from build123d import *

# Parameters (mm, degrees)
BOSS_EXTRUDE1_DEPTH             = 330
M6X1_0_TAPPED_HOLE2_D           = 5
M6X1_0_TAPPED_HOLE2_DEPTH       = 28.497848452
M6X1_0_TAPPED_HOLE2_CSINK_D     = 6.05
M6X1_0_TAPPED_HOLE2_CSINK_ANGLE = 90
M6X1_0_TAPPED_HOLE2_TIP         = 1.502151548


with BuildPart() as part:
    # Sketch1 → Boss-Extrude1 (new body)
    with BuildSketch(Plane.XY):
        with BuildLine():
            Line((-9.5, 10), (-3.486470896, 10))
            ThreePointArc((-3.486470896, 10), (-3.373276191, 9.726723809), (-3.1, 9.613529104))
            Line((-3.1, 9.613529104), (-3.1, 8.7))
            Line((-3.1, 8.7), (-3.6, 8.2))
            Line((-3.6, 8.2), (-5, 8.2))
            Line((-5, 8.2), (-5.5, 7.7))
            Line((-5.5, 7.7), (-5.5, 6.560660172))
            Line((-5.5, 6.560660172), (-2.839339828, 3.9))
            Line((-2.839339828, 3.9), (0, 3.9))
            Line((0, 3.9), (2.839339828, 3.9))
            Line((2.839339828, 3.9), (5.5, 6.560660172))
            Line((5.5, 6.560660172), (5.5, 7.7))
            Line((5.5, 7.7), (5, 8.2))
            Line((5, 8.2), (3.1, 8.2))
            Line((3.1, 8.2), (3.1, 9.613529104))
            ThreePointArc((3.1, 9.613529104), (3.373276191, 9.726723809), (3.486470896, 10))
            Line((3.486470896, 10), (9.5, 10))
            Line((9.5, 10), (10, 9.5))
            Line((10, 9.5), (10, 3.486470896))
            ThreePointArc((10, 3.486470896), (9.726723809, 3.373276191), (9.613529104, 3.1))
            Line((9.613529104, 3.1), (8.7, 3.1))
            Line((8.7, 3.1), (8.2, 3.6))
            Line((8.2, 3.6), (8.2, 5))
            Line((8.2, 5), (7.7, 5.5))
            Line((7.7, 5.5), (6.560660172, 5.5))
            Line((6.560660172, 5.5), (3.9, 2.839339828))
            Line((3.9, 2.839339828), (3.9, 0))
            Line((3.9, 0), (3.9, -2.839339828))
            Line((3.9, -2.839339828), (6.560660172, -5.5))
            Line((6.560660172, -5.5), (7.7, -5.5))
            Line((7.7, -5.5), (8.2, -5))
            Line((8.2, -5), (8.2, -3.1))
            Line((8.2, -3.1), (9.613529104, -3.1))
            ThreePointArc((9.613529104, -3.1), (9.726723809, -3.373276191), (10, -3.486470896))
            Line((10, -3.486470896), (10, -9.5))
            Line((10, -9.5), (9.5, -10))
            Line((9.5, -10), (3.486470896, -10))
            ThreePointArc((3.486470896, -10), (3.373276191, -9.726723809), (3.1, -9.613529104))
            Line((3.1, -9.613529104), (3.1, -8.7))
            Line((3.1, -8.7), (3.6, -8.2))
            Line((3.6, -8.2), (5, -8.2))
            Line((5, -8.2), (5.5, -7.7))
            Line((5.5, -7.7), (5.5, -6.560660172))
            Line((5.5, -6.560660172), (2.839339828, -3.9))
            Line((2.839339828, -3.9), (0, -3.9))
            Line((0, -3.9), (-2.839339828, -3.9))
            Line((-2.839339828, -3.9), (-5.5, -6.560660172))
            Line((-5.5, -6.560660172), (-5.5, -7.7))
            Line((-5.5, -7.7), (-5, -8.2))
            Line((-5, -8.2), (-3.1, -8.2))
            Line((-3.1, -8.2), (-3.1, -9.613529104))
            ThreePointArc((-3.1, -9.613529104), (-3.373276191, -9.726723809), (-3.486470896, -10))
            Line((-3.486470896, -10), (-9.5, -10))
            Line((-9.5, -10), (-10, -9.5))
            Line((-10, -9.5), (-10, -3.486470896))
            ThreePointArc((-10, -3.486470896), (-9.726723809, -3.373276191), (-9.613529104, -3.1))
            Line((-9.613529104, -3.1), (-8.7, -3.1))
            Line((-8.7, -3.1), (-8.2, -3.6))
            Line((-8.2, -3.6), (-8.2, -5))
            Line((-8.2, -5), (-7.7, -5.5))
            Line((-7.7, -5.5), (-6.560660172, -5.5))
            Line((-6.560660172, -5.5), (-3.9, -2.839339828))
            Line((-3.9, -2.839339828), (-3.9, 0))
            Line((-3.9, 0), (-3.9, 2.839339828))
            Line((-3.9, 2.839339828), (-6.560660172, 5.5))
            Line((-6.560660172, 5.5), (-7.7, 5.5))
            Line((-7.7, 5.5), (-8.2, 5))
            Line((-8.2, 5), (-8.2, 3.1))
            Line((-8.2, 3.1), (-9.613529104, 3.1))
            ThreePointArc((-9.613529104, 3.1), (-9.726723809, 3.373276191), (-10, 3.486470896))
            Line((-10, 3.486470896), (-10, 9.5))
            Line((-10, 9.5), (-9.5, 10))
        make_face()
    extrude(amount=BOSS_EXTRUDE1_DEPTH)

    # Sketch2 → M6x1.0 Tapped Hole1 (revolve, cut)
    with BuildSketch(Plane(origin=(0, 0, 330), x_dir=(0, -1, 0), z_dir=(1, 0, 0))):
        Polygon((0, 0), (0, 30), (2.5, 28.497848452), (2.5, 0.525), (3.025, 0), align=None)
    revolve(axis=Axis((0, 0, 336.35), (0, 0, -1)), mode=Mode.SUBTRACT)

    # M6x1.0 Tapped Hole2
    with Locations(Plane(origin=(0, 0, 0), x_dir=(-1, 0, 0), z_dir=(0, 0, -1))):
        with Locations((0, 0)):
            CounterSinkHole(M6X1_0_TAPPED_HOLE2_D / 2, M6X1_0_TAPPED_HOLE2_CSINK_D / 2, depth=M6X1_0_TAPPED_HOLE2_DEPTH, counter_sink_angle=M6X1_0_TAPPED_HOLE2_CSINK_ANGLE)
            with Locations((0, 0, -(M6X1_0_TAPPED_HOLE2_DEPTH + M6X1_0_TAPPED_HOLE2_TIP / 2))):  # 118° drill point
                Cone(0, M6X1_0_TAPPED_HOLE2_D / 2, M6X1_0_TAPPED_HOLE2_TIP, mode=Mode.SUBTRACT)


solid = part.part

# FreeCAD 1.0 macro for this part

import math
import FreeCAD as App
import Part
import Sketcher
Q = App.Units.Quantity


def add_polygon(sketch, points):
    """Adds a closed chain of lines whose ends are joined by coincident constraints."""
    first, n = sketch.GeometryCount, len(points)
    for a, b in zip(points, points[1:] + points[:1]):
        sketch.addGeometry(Part.LineSegment(App.Vector(*a, 0), App.Vector(*b, 0)), False)
    for i in range(n):
        sketch.addConstraint(Sketcher.Constraint("Coincident", first + i, 2, first + (i + 1) % n, 1))

doc = App.newDocument("Part")
params = doc.addObject("Spreadsheet::Sheet", "Params")
for row, (alias, value) in enumerate([
    ("sketch1_width", "1.9 mm"),
    ("sketch1_width2", "1.4 mm"),
    ("pad1_length", "330 mm"),
    ("sketch2_height", "30 mm"),
    ("groove_angle", "360 deg"),
    ("sketch3_diameter", "5 mm"),
    ("hole_diameter", "5 mm"),
    ("hole_depth", "28.497848 mm"),
    ("hole_csink_diameter", "6.05 mm"),
], start=1):
    params.set(f"A{row}", alias)
    params.set(f"B{row}", "=" + value)
    params.setAlias(f"B{row}", alias)

body = doc.addObject("PartDesign::Body", "Body")

# Sketch on XY plane
sketch1 = doc.addObject("Sketcher::SketchObject", "Sketch")
body.addObject(sketch1)
sketch1.AttachmentSupport = (doc.XY_Plane, [""])
sketch1.MapMode = "FlatFace"
sketch1.addGeometry([
    Part.LineSegment(App.Vector(-3.486471, 10, 0), App.Vector(-9.5, 10, 0)),  # 0
    Part.LineSegment(App.Vector(-9.5, 10, 0), App.Vector(-10, 9.5, 0)),  # 1
    Part.LineSegment(App.Vector(-10, 9.5, 0), App.Vector(-10, 3.486471, 0)),  # 2
    Part.ArcOfCircle(Part.Circle(App.Vector(-10, 3.1, 0), App.Vector(0, 0, 1), 0.386471), math.radians(0), math.radians(90)),  # 3
    Part.LineSegment(App.Vector(-9.613529, 3.1, 0), App.Vector(-8.2, 3.1, 0)),  # 4
    Part.LineSegment(App.Vector(-8.2, 3.1, 0), App.Vector(-8.2, 5, 0)),  # 5
    Part.LineSegment(App.Vector(-8.2, 5, 0), App.Vector(-7.7, 5.5, 0)),  # 6
    Part.LineSegment(App.Vector(-7.7, 5.5, 0), App.Vector(-6.56066, 5.5, 0)),  # 7
    Part.LineSegment(App.Vector(-6.56066, 5.5, 0), App.Vector(-3.9, 2.83934, 0)),  # 8
    Part.LineSegment(App.Vector(-3.9, 2.83934, 0), App.Vector(-3.9, -2.83934, 0)),  # 9
    Part.LineSegment(App.Vector(-3.9, -2.83934, 0), App.Vector(-6.56066, -5.5, 0)),  # 10
    Part.LineSegment(App.Vector(-6.56066, -5.5, 0), App.Vector(-7.7, -5.5, 0)),  # 11
    Part.LineSegment(App.Vector(-7.7, -5.5, 0), App.Vector(-8.2, -5, 0)),  # 12
    Part.LineSegment(App.Vector(-8.2, -5, 0), App.Vector(-8.2, -3.6, 0)),  # 13
    Part.LineSegment(App.Vector(-8.2, -3.6, 0), App.Vector(-8.7, -3.1, 0)),  # 14
    Part.LineSegment(App.Vector(-8.7, -3.1, 0), App.Vector(-9.613529, -3.1, 0)),  # 15
    Part.ArcOfCircle(Part.Circle(App.Vector(-10, -3.1, 0), App.Vector(0, 0, 1), 0.386471), math.radians(-90), math.radians(0)),  # 16
    Part.LineSegment(App.Vector(-10, -3.486471, 0), App.Vector(-10, -9.5, 0)),  # 17
    Part.LineSegment(App.Vector(-10, -9.5, 0), App.Vector(-9.5, -10, 0)),  # 18
    Part.LineSegment(App.Vector(-9.5, -10, 0), App.Vector(-3.486471, -10, 0)),  # 19
    Part.ArcOfCircle(Part.Circle(App.Vector(-3.1, -10, 0), App.Vector(0, 0, 1), 0.386471), math.radians(90), math.radians(180)),  # 20
    Part.LineSegment(App.Vector(-3.1, -9.613529, 0), App.Vector(-3.1, -8.2, 0)),  # 21
    Part.LineSegment(App.Vector(-3.1, -8.2, 0), App.Vector(-5, -8.2, 0)),  # 22
    Part.LineSegment(App.Vector(-5, -8.2, 0), App.Vector(-5.5, -7.7, 0)),  # 23
    Part.LineSegment(App.Vector(-5.5, -7.7, 0), App.Vector(-5.5, -6.56066, 0)),  # 24
    Part.LineSegment(App.Vector(-5.5, -6.56066, 0), App.Vector(-2.83934, -3.9, 0)),  # 25
    Part.LineSegment(App.Vector(-2.83934, -3.9, 0), App.Vector(2.83934, -3.9, 0)),  # 26
    Part.LineSegment(App.Vector(2.83934, -3.9, 0), App.Vector(5.5, -6.56066, 0)),  # 27
    Part.LineSegment(App.Vector(5.5, -6.56066, 0), App.Vector(5.5, -7.7, 0)),  # 28
    Part.LineSegment(App.Vector(5.5, -7.7, 0), App.Vector(5, -8.2, 0)),  # 29
    Part.LineSegment(App.Vector(5, -8.2, 0), App.Vector(3.6, -8.2, 0)),  # 30
    Part.LineSegment(App.Vector(3.6, -8.2, 0), App.Vector(3.1, -8.7, 0)),  # 31
    Part.LineSegment(App.Vector(3.1, -8.7, 0), App.Vector(3.1, -9.613529, 0)),  # 32
    Part.ArcOfCircle(Part.Circle(App.Vector(3.1, -10, 0), App.Vector(0, 0, 1), 0.386471), math.radians(0), math.radians(90)),  # 33
    Part.LineSegment(App.Vector(3.486471, -10, 0), App.Vector(9.5, -10, 0)),  # 34
    Part.LineSegment(App.Vector(9.5, -10, 0), App.Vector(10, -9.5, 0)),  # 35
    Part.LineSegment(App.Vector(10, -9.5, 0), App.Vector(10, -3.486471, 0)),  # 36
    Part.ArcOfCircle(Part.Circle(App.Vector(10, -3.1, 0), App.Vector(0, 0, 1), 0.386471), math.radians(-180), math.radians(-90)),  # 37
    Part.LineSegment(App.Vector(9.613529, -3.1, 0), App.Vector(8.2, -3.1, 0)),  # 38
    Part.LineSegment(App.Vector(8.2, -3.1, 0), App.Vector(8.2, -5, 0)),  # 39
    Part.LineSegment(App.Vector(8.2, -5, 0), App.Vector(7.7, -5.5, 0)),  # 40
    Part.LineSegment(App.Vector(7.7, -5.5, 0), App.Vector(6.56066, -5.5, 0)),  # 41
    Part.LineSegment(App.Vector(6.56066, -5.5, 0), App.Vector(3.9, -2.83934, 0)),  # 42
    Part.LineSegment(App.Vector(3.9, -2.83934, 0), App.Vector(3.9, 2.83934, 0)),  # 43
    Part.LineSegment(App.Vector(3.9, 2.83934, 0), App.Vector(6.56066, 5.5, 0)),  # 44
    Part.LineSegment(App.Vector(6.56066, 5.5, 0), App.Vector(7.7, 5.5, 0)),  # 45
    Part.LineSegment(App.Vector(7.7, 5.5, 0), App.Vector(8.2, 5, 0)),  # 46
    Part.LineSegment(App.Vector(8.2, 5, 0), App.Vector(8.2, 3.6, 0)),  # 47
    Part.LineSegment(App.Vector(8.2, 3.6, 0), App.Vector(8.7, 3.1, 0)),  # 48
    Part.LineSegment(App.Vector(8.7, 3.1, 0), App.Vector(9.613529, 3.1, 0)),  # 49
    Part.ArcOfCircle(Part.Circle(App.Vector(10, 3.1, 0), App.Vector(0, 0, 1), 0.386471), math.radians(90), math.radians(180)),  # 50
    Part.LineSegment(App.Vector(10, 3.486471, 0), App.Vector(10, 9.5, 0)),  # 51
    Part.LineSegment(App.Vector(10, 9.5, 0), App.Vector(9.5, 10, 0)),  # 52
    Part.LineSegment(App.Vector(9.5, 10, 0), App.Vector(3.486471, 10, 0)),  # 53
    Part.ArcOfCircle(Part.Circle(App.Vector(3.1, 10, 0), App.Vector(0, 0, 1), 0.386471), math.radians(-90), math.radians(0)),  # 54
    Part.LineSegment(App.Vector(3.1, 9.613529, 0), App.Vector(3.1, 8.2, 0)),  # 55
    Part.LineSegment(App.Vector(3.1, 8.2, 0), App.Vector(5, 8.2, 0)),  # 56
    Part.LineSegment(App.Vector(5, 8.2, 0), App.Vector(5.5, 7.7, 0)),  # 57
    Part.LineSegment(App.Vector(5.5, 7.7, 0), App.Vector(5.5, 6.56066, 0)),  # 58
    Part.LineSegment(App.Vector(5.5, 6.56066, 0), App.Vector(2.83934, 3.9, 0)),  # 59
    Part.LineSegment(App.Vector(2.83934, 3.9, 0), App.Vector(-2.83934, 3.9, 0)),  # 60
    Part.LineSegment(App.Vector(-2.83934, 3.9, 0), App.Vector(-5.5, 6.56066, 0)),  # 61
    Part.LineSegment(App.Vector(-5.5, 6.56066, 0), App.Vector(-5.5, 7.7, 0)),  # 62
    Part.LineSegment(App.Vector(-5.5, 7.7, 0), App.Vector(-5, 8.2, 0)),  # 63
    Part.LineSegment(App.Vector(-5, 8.2, 0), App.Vector(-3.6, 8.2, 0)),  # 64
    Part.LineSegment(App.Vector(-3.6, 8.2, 0), App.Vector(-3.1, 8.7, 0)),  # 65
    Part.LineSegment(App.Vector(-3.1, 8.7, 0), App.Vector(-3.1, 9.613529, 0)),  # 66
    Part.ArcOfCircle(Part.Circle(App.Vector(-3.1, 10, 0), App.Vector(0, 0, 1), 0.386471), math.radians(-180), math.radians(-90)),  # 67
], False)
sketch1.addConstraint([
    Sketcher.Constraint("Coincident", 0, 2, 1, 1),
    Sketcher.Constraint("Coincident", 1, 2, 2, 1),
    Sketcher.Constraint("Coincident", 2, 2, 3, 2),
    Sketcher.Constraint("Coincident", 3, 1, 4, 1),
    Sketcher.Constraint("Coincident", 4, 2, 5, 1),
    Sketcher.Constraint("Coincident", 5, 2, 6, 1),
    Sketcher.Constraint("Coincident", 6, 2, 7, 1),
    Sketcher.Constraint("Coincident", 7, 2, 8, 1),
    Sketcher.Constraint("Coincident", 8, 2, 9, 1),
    Sketcher.Constraint("Coincident", 9, 2, 10, 1),
    Sketcher.Constraint("Coincident", 10, 2, 11, 1),
    Sketcher.Constraint("Coincident", 11, 2, 12, 1),
    Sketcher.Constraint("Coincident", 12, 2, 13, 1),
    Sketcher.Constraint("Coincident", 13, 2, 14, 1),
    Sketcher.Constraint("Coincident", 14, 2, 15, 1),
    Sketcher.Constraint("Coincident", 15, 2, 16, 2),
    Sketcher.Constraint("Coincident", 16, 1, 17, 1),
    Sketcher.Constraint("Coincident", 17, 2, 18, 1),
    Sketcher.Constraint("Coincident", 18, 2, 19, 1),
    Sketcher.Constraint("Coincident", 19, 2, 20, 2),
    Sketcher.Constraint("Coincident", 20, 1, 21, 1),
    Sketcher.Constraint("Coincident", 21, 2, 22, 1),
    Sketcher.Constraint("Coincident", 22, 2, 23, 1),
    Sketcher.Constraint("Coincident", 23, 2, 24, 1),
    Sketcher.Constraint("Coincident", 24, 2, 25, 1),
    Sketcher.Constraint("Coincident", 25, 2, 26, 1),
    Sketcher.Constraint("Coincident", 26, 2, 27, 1),
    Sketcher.Constraint("Coincident", 27, 2, 28, 1),
    Sketcher.Constraint("Coincident", 28, 2, 29, 1),
    Sketcher.Constraint("Coincident", 29, 2, 30, 1),
    Sketcher.Constraint("Coincident", 30, 2, 31, 1),
    Sketcher.Constraint("Coincident", 31, 2, 32, 1),
    Sketcher.Constraint("Coincident", 32, 2, 33, 2),
    Sketcher.Constraint("Coincident", 33, 1, 34, 1),
    Sketcher.Constraint("Coincident", 34, 2, 35, 1),
    Sketcher.Constraint("Coincident", 35, 2, 36, 1),
    Sketcher.Constraint("Coincident", 36, 2, 37, 2),
    Sketcher.Constraint("Coincident", 37, 1, 38, 1),
    Sketcher.Constraint("Coincident", 38, 2, 39, 1),
    Sketcher.Constraint("Coincident", 39, 2, 40, 1),
    Sketcher.Constraint("Coincident", 40, 2, 41, 1),
    Sketcher.Constraint("Coincident", 41, 2, 42, 1),
    Sketcher.Constraint("Coincident", 42, 2, 43, 1),
    Sketcher.Constraint("Coincident", 43, 2, 44, 1),
    Sketcher.Constraint("Coincident", 44, 2, 45, 1),
    Sketcher.Constraint("Coincident", 45, 2, 46, 1),
    Sketcher.Constraint("Coincident", 46, 2, 47, 1),
    Sketcher.Constraint("Coincident", 47, 2, 48, 1),
    Sketcher.Constraint("Coincident", 48, 2, 49, 1),
    Sketcher.Constraint("Coincident", 49, 2, 50, 2),
    Sketcher.Constraint("Coincident", 50, 1, 51, 1),
    Sketcher.Constraint("Coincident", 51, 2, 52, 1),
    Sketcher.Constraint("Coincident", 52, 2, 53, 1),
    Sketcher.Constraint("Coincident", 53, 2, 54, 2),
    Sketcher.Constraint("Coincident", 54, 1, 55, 1),
    Sketcher.Constraint("Coincident", 55, 2, 56, 1),
    Sketcher.Constraint("Coincident", 56, 2, 57, 1),
    Sketcher.Constraint("Coincident", 57, 2, 58, 1),
    Sketcher.Constraint("Coincident", 58, 2, 59, 1),
    Sketcher.Constraint("Coincident", 59, 2, 60, 1),
    Sketcher.Constraint("Coincident", 60, 2, 61, 1),
    Sketcher.Constraint("Coincident", 61, 2, 62, 1),
    Sketcher.Constraint("Coincident", 62, 2, 63, 1),
    Sketcher.Constraint("Coincident", 63, 2, 64, 1),
    Sketcher.Constraint("Coincident", 64, 2, 65, 1),
    Sketcher.Constraint("Coincident", 65, 2, 66, 1),
    Sketcher.Constraint("Coincident", 66, 2, 67, 2),
    Sketcher.Constraint("Coincident", 67, 1, 0, 1),
    Sketcher.Constraint("Horizontal", 0),
    Sketcher.Constraint("Vertical", 2),
    Sketcher.Constraint("Horizontal", 4),
    Sketcher.Constraint("Vertical", 5),
    Sketcher.Constraint("Horizontal", 7),
    Sketcher.Constraint("Vertical", 9),
    Sketcher.Constraint("Horizontal", 11),
    Sketcher.Constraint("Vertical", 13),
    Sketcher.Constraint("Horizontal", 15),
    Sketcher.Constraint("Vertical", 17),
    Sketcher.Constraint("Horizontal", 19),
    Sketcher.Constraint("Vertical", 21),
    Sketcher.Constraint("Horizontal", 22),
    Sketcher.Constraint("Vertical", 24),
    Sketcher.Constraint("Horizontal", 26),
    Sketcher.Constraint("Vertical", 28),
    Sketcher.Constraint("Horizontal", 30),
    Sketcher.Constraint("Vertical", 32),
    Sketcher.Constraint("Horizontal", 34),
    Sketcher.Constraint("Vertical", 36),
    Sketcher.Constraint("Horizontal", 38),
    Sketcher.Constraint("Vertical", 39),
    Sketcher.Constraint("Horizontal", 41),
    Sketcher.Constraint("Vertical", 43),
    Sketcher.Constraint("Horizontal", 45),
    Sketcher.Constraint("Vertical", 47),
    Sketcher.Constraint("Horizontal", 49),
    Sketcher.Constraint("Vertical", 51),
    Sketcher.Constraint("Horizontal", 53),
    Sketcher.Constraint("Vertical", 55),
    Sketcher.Constraint("Horizontal", 56),
    Sketcher.Constraint("Vertical", 58),
    Sketcher.Constraint("Horizontal", 60),
    Sketcher.Constraint("Vertical", 62),
    Sketcher.Constraint("Horizontal", 64),
    Sketcher.Constraint("Vertical", 66),
    Sketcher.Constraint("Equal", 3, 16),
    Sketcher.Constraint("Equal", 16, 20),
    Sketcher.Constraint("Equal", 20, 33),
    Sketcher.Constraint("Equal", 33, 37),
    Sketcher.Constraint("Equal", 37, 50),
    Sketcher.Constraint("Equal", 50, 54),
    Sketcher.Constraint("Equal", 54, 67),
    Sketcher.Constraint("Symmetric", 3, 3, 37, 3, -1, 1),
    Sketcher.Constraint("Symmetric", 16, 3, 50, 3, -1, 1),
    Sketcher.Constraint("Symmetric", 20, 3, 54, 3, -1, 1),
    Sketcher.Constraint("Symmetric", 33, 3, 67, 3, -1, 1),
    Sketcher.Constraint("Symmetric", 0, 2, 34, 2, -1, 1),
    Sketcher.Constraint("Symmetric", 1, 2, 35, 2, -1, 1),
    Sketcher.Constraint("Symmetric", 4, 2, 38, 2, -1, 1),
    Sketcher.Constraint("Symmetric", 6, 2, 40, 2, -1, 1),
    Sketcher.Constraint("Symmetric", 8, 2, 42, 2, -1, 1),
    Sketcher.Constraint("Symmetric", 10, 2, 44, 2, -1, 1),
    Sketcher.Constraint("Symmetric", 12, 2, 46, 2, -1, 1),
    Sketcher.Constraint("Symmetric", 14, 2, 48, 2, -1, 1),
    Sketcher.Constraint("Symmetric", 17, 2, 51, 2, -1, 1),
    Sketcher.Constraint("Symmetric", 18, 2, 52, 2, -1, 1),
    Sketcher.Constraint("Symmetric", 21, 2, 55, 2, -1, 1),
    Sketcher.Constraint("Symmetric", 23, 2, 57, 2, -1, 1),
    Sketcher.Constraint("Symmetric", 25, 2, 59, 2, -1, 1),
    Sketcher.Constraint("Symmetric", 27, 2, 61, 2, -1, 1),
    Sketcher.Constraint("Symmetric", 29, 2, 63, 2, -1, 1),
    Sketcher.Constraint("Symmetric", 31, 2, 65, 2, -1, 1),
    Sketcher.Constraint("Symmetric", 20, 3, 33, 3, -2),
    Sketcher.Constraint("Symmetric", 16, 3, 37, 3, -2),
    Sketcher.Constraint("Symmetric", 24, 2, 27, 2, -2),
    Sketcher.Constraint("Symmetric", 22, 2, 29, 2, -2),
    Sketcher.Constraint("Symmetric", 18, 2, 34, 2, -2),
    Sketcher.Constraint("Symmetric", 17, 2, 35, 2, -2),
    Sketcher.Constraint("Symmetric", 12, 2, 39, 2, -2),
    Sketcher.Constraint("Symmetric", 11, 2, 40, 2, -2),
    Sketcher.Constraint("Parallel", 1, 6),
    Sketcher.Constraint("Perpendicular", 6, 8),
    Sketcher.Constraint("Perpendicular", 8, 10),
    Sketcher.Constraint("Perpendicular", 10, 12),
    Sketcher.Constraint("Parallel", 12, 14),
    Sketcher.Constraint("Parallel", 14, 18),
    Sketcher.Constraint("Parallel", 18, 23),
    Sketcher.Constraint("Perpendicular", 23, 25),
    Sketcher.Constraint("Perpendicular", 25, 27),
    Sketcher.Constraint("Perpendicular", 27, 29),
    Sketcher.Constraint("Parallel", 29, 31),
    Sketcher.Constraint("Perpendicular", 40, 42),
    Sketcher.Constraint("Perpendicular", 42, 44),
    Sketcher.Constraint("Perpendicular", 44, 46),
    Sketcher.Constraint("Parallel", 46, 48),
    Sketcher.Constraint("Parallel", 52, 57),
    Sketcher.Constraint("Perpendicular", 57, 59),
    Sketcher.Constraint("Perpendicular", 59, 61),
    Sketcher.Constraint("Perpendicular", 61, 63),
    Sketcher.Constraint("Parallel", 63, 65),
    Sketcher.Constraint("Horizontal", 67, 3, 0, 2),
    Sketcher.Constraint("Horizontal", 50, 3, 3, 1),
    Sketcher.Constraint("Horizontal", 37, 3, 14, 2),
    Sketcher.Constraint("Horizontal", 9, 2, 42, 2),
    Sketcher.Constraint("Vertical", 16, 3, 1, 2),
    Sketcher.Constraint("Vertical", 67, 3, 20, 1),
    Sketcher.Constraint("Vertical", 54, 3, 31, 2),
    Sketcher.Constraint("Equal", 53, 2),
    Sketcher.Constraint("Equal", 56, 5),
    Sketcher.Constraint("Equal", 60, 9),
    Sketcher.Constraint("Equal", 64, 13),
    Sketcher.Constraint("Equal", 38, 21),
    Sketcher.Constraint("Equal", 45, 24),
    Sketcher.Constraint("Equal", 1, 6),
    Sketcher.Constraint("Equal", 12, 14),
    Sketcher.Constraint("Equal", 18, 23),
    Sketcher.Constraint("Equal", 10, 25),
    Sketcher.Constraint("DistanceX", 22, 2, 22, 1, Q("1.9 mm")),
    Sketcher.Constraint("DistanceX", 30, 2, 30, 1, Q("1.4 mm")),
    Sketcher.Constraint("DistanceX", 3, 3, -1, 1, Q("10 mm")),
    Sketcher.Constraint("DistanceY", -1, 1, 5, 2, Q("5 mm")),
    Sketcher.Constraint("DistanceX", 4, 2, -1, 1, Q("8.2 mm")),
    Sketcher.Constraint("DistanceX", 8, 2, -1, 1, Q("3.9 mm")),
    Sketcher.Constraint("Radius", 3, Q("0.386471 mm")),
    Sketcher.Constraint("DistanceX", 7, 1, 7, 2, Q("1.13934 mm")),
])
sketch1.setExpression("Constraints[176]", "Params.sketch1_width")
sketch1.setExpression("Constraints[177]", "Params.sketch1_width2")
pad1 = doc.addObject("PartDesign::Pad", "Pad")
body.addObject(pad1)
pad1.Profile = sketch1
pad1.setExpression("Length", "Params.pad1_length")

# Sketch on YZ plane
sketch2 = doc.addObject("Sketcher::SketchObject", "Sketch001")
body.addObject(sketch2)
sketch2.AttachmentSupport = (doc.YZ_Plane, [""])
sketch2.MapMode = "FlatFace"
add_polygon(sketch2, [(0, 300), (0, 330), (-3.025, 330), (-2.5, 329.475), (-2.5, 301.502152)])  # lines 0-4
sketch2.addConstraint([
    Sketcher.Constraint("Vertical", 0),
    Sketcher.Constraint("Horizontal", 1),
    Sketcher.Constraint("Vertical", 3),
    Sketcher.Constraint("PointOnObject", 0, 2, -2),
    Sketcher.Constraint("DistanceY", 0, 1, 0, 2, Q("30 mm")),
    Sketcher.Constraint("Angle", 2, Q("-45 deg")),
    Sketcher.Constraint("Angle", 4, Q("-31 deg")),
    Sketcher.Constraint("DistanceY", -1, 1, 0, 2, Q("330 mm")),
    Sketcher.Constraint("DistanceX", 2, 2, -1, 1, Q("2.5 mm")),
    Sketcher.Constraint("DistanceX", 1, 2, 1, 1, Q("3.025 mm")),
])
sketch2.setExpression("Constraints[9]", "Params.sketch2_height")
groove = doc.addObject("PartDesign::Groove", "Groove")
body.addObject(groove)
groove.Profile = sketch2
groove.ReferenceAxis = (sketch2, ["V_Axis"])
groove.setExpression("Angle", "Params.groove_angle")

# Sketch on XY plane
sketch3 = doc.addObject("Sketcher::SketchObject", "Sketch002")
body.addObject(sketch3)
sketch3.AttachmentSupport = (doc.XY_Plane, [""])
sketch3.MapMode = "FlatFace"
sketch3.addGeometry(Part.Circle(App.Vector(0, 0, 0), App.Vector(0, 0, 1), 2.5), False)
sketch3.addConstraint([
    Sketcher.Constraint("Coincident", 0, 3, -1, 1),
    Sketcher.Constraint("Diameter", 0, Q("5 mm")),
])
sketch3.setExpression("Constraints[1]", "Params.sketch3_diameter")
doc.recompute()
hole = doc.addObject("PartDesign::Hole", "Hole")
body.addObject(hole)
hole.Profile = sketch3
hole.ThreadType = "None"
hole.setExpression("Diameter", "Params.hole_diameter")
hole.DepthType = "Dimension"
hole.setExpression("Depth", "Params.hole_depth")
hole.DrillPoint = "Angled"
hole.DrillPointAngle = 118
hole.HoleCutType = "Countersink"
hole.setExpression("HoleCutDiameter", "Params.hole_csink_diameter")
hole.HoleCutCountersinkAngle = 90
hole.Reversed = True

doc.recompute()
